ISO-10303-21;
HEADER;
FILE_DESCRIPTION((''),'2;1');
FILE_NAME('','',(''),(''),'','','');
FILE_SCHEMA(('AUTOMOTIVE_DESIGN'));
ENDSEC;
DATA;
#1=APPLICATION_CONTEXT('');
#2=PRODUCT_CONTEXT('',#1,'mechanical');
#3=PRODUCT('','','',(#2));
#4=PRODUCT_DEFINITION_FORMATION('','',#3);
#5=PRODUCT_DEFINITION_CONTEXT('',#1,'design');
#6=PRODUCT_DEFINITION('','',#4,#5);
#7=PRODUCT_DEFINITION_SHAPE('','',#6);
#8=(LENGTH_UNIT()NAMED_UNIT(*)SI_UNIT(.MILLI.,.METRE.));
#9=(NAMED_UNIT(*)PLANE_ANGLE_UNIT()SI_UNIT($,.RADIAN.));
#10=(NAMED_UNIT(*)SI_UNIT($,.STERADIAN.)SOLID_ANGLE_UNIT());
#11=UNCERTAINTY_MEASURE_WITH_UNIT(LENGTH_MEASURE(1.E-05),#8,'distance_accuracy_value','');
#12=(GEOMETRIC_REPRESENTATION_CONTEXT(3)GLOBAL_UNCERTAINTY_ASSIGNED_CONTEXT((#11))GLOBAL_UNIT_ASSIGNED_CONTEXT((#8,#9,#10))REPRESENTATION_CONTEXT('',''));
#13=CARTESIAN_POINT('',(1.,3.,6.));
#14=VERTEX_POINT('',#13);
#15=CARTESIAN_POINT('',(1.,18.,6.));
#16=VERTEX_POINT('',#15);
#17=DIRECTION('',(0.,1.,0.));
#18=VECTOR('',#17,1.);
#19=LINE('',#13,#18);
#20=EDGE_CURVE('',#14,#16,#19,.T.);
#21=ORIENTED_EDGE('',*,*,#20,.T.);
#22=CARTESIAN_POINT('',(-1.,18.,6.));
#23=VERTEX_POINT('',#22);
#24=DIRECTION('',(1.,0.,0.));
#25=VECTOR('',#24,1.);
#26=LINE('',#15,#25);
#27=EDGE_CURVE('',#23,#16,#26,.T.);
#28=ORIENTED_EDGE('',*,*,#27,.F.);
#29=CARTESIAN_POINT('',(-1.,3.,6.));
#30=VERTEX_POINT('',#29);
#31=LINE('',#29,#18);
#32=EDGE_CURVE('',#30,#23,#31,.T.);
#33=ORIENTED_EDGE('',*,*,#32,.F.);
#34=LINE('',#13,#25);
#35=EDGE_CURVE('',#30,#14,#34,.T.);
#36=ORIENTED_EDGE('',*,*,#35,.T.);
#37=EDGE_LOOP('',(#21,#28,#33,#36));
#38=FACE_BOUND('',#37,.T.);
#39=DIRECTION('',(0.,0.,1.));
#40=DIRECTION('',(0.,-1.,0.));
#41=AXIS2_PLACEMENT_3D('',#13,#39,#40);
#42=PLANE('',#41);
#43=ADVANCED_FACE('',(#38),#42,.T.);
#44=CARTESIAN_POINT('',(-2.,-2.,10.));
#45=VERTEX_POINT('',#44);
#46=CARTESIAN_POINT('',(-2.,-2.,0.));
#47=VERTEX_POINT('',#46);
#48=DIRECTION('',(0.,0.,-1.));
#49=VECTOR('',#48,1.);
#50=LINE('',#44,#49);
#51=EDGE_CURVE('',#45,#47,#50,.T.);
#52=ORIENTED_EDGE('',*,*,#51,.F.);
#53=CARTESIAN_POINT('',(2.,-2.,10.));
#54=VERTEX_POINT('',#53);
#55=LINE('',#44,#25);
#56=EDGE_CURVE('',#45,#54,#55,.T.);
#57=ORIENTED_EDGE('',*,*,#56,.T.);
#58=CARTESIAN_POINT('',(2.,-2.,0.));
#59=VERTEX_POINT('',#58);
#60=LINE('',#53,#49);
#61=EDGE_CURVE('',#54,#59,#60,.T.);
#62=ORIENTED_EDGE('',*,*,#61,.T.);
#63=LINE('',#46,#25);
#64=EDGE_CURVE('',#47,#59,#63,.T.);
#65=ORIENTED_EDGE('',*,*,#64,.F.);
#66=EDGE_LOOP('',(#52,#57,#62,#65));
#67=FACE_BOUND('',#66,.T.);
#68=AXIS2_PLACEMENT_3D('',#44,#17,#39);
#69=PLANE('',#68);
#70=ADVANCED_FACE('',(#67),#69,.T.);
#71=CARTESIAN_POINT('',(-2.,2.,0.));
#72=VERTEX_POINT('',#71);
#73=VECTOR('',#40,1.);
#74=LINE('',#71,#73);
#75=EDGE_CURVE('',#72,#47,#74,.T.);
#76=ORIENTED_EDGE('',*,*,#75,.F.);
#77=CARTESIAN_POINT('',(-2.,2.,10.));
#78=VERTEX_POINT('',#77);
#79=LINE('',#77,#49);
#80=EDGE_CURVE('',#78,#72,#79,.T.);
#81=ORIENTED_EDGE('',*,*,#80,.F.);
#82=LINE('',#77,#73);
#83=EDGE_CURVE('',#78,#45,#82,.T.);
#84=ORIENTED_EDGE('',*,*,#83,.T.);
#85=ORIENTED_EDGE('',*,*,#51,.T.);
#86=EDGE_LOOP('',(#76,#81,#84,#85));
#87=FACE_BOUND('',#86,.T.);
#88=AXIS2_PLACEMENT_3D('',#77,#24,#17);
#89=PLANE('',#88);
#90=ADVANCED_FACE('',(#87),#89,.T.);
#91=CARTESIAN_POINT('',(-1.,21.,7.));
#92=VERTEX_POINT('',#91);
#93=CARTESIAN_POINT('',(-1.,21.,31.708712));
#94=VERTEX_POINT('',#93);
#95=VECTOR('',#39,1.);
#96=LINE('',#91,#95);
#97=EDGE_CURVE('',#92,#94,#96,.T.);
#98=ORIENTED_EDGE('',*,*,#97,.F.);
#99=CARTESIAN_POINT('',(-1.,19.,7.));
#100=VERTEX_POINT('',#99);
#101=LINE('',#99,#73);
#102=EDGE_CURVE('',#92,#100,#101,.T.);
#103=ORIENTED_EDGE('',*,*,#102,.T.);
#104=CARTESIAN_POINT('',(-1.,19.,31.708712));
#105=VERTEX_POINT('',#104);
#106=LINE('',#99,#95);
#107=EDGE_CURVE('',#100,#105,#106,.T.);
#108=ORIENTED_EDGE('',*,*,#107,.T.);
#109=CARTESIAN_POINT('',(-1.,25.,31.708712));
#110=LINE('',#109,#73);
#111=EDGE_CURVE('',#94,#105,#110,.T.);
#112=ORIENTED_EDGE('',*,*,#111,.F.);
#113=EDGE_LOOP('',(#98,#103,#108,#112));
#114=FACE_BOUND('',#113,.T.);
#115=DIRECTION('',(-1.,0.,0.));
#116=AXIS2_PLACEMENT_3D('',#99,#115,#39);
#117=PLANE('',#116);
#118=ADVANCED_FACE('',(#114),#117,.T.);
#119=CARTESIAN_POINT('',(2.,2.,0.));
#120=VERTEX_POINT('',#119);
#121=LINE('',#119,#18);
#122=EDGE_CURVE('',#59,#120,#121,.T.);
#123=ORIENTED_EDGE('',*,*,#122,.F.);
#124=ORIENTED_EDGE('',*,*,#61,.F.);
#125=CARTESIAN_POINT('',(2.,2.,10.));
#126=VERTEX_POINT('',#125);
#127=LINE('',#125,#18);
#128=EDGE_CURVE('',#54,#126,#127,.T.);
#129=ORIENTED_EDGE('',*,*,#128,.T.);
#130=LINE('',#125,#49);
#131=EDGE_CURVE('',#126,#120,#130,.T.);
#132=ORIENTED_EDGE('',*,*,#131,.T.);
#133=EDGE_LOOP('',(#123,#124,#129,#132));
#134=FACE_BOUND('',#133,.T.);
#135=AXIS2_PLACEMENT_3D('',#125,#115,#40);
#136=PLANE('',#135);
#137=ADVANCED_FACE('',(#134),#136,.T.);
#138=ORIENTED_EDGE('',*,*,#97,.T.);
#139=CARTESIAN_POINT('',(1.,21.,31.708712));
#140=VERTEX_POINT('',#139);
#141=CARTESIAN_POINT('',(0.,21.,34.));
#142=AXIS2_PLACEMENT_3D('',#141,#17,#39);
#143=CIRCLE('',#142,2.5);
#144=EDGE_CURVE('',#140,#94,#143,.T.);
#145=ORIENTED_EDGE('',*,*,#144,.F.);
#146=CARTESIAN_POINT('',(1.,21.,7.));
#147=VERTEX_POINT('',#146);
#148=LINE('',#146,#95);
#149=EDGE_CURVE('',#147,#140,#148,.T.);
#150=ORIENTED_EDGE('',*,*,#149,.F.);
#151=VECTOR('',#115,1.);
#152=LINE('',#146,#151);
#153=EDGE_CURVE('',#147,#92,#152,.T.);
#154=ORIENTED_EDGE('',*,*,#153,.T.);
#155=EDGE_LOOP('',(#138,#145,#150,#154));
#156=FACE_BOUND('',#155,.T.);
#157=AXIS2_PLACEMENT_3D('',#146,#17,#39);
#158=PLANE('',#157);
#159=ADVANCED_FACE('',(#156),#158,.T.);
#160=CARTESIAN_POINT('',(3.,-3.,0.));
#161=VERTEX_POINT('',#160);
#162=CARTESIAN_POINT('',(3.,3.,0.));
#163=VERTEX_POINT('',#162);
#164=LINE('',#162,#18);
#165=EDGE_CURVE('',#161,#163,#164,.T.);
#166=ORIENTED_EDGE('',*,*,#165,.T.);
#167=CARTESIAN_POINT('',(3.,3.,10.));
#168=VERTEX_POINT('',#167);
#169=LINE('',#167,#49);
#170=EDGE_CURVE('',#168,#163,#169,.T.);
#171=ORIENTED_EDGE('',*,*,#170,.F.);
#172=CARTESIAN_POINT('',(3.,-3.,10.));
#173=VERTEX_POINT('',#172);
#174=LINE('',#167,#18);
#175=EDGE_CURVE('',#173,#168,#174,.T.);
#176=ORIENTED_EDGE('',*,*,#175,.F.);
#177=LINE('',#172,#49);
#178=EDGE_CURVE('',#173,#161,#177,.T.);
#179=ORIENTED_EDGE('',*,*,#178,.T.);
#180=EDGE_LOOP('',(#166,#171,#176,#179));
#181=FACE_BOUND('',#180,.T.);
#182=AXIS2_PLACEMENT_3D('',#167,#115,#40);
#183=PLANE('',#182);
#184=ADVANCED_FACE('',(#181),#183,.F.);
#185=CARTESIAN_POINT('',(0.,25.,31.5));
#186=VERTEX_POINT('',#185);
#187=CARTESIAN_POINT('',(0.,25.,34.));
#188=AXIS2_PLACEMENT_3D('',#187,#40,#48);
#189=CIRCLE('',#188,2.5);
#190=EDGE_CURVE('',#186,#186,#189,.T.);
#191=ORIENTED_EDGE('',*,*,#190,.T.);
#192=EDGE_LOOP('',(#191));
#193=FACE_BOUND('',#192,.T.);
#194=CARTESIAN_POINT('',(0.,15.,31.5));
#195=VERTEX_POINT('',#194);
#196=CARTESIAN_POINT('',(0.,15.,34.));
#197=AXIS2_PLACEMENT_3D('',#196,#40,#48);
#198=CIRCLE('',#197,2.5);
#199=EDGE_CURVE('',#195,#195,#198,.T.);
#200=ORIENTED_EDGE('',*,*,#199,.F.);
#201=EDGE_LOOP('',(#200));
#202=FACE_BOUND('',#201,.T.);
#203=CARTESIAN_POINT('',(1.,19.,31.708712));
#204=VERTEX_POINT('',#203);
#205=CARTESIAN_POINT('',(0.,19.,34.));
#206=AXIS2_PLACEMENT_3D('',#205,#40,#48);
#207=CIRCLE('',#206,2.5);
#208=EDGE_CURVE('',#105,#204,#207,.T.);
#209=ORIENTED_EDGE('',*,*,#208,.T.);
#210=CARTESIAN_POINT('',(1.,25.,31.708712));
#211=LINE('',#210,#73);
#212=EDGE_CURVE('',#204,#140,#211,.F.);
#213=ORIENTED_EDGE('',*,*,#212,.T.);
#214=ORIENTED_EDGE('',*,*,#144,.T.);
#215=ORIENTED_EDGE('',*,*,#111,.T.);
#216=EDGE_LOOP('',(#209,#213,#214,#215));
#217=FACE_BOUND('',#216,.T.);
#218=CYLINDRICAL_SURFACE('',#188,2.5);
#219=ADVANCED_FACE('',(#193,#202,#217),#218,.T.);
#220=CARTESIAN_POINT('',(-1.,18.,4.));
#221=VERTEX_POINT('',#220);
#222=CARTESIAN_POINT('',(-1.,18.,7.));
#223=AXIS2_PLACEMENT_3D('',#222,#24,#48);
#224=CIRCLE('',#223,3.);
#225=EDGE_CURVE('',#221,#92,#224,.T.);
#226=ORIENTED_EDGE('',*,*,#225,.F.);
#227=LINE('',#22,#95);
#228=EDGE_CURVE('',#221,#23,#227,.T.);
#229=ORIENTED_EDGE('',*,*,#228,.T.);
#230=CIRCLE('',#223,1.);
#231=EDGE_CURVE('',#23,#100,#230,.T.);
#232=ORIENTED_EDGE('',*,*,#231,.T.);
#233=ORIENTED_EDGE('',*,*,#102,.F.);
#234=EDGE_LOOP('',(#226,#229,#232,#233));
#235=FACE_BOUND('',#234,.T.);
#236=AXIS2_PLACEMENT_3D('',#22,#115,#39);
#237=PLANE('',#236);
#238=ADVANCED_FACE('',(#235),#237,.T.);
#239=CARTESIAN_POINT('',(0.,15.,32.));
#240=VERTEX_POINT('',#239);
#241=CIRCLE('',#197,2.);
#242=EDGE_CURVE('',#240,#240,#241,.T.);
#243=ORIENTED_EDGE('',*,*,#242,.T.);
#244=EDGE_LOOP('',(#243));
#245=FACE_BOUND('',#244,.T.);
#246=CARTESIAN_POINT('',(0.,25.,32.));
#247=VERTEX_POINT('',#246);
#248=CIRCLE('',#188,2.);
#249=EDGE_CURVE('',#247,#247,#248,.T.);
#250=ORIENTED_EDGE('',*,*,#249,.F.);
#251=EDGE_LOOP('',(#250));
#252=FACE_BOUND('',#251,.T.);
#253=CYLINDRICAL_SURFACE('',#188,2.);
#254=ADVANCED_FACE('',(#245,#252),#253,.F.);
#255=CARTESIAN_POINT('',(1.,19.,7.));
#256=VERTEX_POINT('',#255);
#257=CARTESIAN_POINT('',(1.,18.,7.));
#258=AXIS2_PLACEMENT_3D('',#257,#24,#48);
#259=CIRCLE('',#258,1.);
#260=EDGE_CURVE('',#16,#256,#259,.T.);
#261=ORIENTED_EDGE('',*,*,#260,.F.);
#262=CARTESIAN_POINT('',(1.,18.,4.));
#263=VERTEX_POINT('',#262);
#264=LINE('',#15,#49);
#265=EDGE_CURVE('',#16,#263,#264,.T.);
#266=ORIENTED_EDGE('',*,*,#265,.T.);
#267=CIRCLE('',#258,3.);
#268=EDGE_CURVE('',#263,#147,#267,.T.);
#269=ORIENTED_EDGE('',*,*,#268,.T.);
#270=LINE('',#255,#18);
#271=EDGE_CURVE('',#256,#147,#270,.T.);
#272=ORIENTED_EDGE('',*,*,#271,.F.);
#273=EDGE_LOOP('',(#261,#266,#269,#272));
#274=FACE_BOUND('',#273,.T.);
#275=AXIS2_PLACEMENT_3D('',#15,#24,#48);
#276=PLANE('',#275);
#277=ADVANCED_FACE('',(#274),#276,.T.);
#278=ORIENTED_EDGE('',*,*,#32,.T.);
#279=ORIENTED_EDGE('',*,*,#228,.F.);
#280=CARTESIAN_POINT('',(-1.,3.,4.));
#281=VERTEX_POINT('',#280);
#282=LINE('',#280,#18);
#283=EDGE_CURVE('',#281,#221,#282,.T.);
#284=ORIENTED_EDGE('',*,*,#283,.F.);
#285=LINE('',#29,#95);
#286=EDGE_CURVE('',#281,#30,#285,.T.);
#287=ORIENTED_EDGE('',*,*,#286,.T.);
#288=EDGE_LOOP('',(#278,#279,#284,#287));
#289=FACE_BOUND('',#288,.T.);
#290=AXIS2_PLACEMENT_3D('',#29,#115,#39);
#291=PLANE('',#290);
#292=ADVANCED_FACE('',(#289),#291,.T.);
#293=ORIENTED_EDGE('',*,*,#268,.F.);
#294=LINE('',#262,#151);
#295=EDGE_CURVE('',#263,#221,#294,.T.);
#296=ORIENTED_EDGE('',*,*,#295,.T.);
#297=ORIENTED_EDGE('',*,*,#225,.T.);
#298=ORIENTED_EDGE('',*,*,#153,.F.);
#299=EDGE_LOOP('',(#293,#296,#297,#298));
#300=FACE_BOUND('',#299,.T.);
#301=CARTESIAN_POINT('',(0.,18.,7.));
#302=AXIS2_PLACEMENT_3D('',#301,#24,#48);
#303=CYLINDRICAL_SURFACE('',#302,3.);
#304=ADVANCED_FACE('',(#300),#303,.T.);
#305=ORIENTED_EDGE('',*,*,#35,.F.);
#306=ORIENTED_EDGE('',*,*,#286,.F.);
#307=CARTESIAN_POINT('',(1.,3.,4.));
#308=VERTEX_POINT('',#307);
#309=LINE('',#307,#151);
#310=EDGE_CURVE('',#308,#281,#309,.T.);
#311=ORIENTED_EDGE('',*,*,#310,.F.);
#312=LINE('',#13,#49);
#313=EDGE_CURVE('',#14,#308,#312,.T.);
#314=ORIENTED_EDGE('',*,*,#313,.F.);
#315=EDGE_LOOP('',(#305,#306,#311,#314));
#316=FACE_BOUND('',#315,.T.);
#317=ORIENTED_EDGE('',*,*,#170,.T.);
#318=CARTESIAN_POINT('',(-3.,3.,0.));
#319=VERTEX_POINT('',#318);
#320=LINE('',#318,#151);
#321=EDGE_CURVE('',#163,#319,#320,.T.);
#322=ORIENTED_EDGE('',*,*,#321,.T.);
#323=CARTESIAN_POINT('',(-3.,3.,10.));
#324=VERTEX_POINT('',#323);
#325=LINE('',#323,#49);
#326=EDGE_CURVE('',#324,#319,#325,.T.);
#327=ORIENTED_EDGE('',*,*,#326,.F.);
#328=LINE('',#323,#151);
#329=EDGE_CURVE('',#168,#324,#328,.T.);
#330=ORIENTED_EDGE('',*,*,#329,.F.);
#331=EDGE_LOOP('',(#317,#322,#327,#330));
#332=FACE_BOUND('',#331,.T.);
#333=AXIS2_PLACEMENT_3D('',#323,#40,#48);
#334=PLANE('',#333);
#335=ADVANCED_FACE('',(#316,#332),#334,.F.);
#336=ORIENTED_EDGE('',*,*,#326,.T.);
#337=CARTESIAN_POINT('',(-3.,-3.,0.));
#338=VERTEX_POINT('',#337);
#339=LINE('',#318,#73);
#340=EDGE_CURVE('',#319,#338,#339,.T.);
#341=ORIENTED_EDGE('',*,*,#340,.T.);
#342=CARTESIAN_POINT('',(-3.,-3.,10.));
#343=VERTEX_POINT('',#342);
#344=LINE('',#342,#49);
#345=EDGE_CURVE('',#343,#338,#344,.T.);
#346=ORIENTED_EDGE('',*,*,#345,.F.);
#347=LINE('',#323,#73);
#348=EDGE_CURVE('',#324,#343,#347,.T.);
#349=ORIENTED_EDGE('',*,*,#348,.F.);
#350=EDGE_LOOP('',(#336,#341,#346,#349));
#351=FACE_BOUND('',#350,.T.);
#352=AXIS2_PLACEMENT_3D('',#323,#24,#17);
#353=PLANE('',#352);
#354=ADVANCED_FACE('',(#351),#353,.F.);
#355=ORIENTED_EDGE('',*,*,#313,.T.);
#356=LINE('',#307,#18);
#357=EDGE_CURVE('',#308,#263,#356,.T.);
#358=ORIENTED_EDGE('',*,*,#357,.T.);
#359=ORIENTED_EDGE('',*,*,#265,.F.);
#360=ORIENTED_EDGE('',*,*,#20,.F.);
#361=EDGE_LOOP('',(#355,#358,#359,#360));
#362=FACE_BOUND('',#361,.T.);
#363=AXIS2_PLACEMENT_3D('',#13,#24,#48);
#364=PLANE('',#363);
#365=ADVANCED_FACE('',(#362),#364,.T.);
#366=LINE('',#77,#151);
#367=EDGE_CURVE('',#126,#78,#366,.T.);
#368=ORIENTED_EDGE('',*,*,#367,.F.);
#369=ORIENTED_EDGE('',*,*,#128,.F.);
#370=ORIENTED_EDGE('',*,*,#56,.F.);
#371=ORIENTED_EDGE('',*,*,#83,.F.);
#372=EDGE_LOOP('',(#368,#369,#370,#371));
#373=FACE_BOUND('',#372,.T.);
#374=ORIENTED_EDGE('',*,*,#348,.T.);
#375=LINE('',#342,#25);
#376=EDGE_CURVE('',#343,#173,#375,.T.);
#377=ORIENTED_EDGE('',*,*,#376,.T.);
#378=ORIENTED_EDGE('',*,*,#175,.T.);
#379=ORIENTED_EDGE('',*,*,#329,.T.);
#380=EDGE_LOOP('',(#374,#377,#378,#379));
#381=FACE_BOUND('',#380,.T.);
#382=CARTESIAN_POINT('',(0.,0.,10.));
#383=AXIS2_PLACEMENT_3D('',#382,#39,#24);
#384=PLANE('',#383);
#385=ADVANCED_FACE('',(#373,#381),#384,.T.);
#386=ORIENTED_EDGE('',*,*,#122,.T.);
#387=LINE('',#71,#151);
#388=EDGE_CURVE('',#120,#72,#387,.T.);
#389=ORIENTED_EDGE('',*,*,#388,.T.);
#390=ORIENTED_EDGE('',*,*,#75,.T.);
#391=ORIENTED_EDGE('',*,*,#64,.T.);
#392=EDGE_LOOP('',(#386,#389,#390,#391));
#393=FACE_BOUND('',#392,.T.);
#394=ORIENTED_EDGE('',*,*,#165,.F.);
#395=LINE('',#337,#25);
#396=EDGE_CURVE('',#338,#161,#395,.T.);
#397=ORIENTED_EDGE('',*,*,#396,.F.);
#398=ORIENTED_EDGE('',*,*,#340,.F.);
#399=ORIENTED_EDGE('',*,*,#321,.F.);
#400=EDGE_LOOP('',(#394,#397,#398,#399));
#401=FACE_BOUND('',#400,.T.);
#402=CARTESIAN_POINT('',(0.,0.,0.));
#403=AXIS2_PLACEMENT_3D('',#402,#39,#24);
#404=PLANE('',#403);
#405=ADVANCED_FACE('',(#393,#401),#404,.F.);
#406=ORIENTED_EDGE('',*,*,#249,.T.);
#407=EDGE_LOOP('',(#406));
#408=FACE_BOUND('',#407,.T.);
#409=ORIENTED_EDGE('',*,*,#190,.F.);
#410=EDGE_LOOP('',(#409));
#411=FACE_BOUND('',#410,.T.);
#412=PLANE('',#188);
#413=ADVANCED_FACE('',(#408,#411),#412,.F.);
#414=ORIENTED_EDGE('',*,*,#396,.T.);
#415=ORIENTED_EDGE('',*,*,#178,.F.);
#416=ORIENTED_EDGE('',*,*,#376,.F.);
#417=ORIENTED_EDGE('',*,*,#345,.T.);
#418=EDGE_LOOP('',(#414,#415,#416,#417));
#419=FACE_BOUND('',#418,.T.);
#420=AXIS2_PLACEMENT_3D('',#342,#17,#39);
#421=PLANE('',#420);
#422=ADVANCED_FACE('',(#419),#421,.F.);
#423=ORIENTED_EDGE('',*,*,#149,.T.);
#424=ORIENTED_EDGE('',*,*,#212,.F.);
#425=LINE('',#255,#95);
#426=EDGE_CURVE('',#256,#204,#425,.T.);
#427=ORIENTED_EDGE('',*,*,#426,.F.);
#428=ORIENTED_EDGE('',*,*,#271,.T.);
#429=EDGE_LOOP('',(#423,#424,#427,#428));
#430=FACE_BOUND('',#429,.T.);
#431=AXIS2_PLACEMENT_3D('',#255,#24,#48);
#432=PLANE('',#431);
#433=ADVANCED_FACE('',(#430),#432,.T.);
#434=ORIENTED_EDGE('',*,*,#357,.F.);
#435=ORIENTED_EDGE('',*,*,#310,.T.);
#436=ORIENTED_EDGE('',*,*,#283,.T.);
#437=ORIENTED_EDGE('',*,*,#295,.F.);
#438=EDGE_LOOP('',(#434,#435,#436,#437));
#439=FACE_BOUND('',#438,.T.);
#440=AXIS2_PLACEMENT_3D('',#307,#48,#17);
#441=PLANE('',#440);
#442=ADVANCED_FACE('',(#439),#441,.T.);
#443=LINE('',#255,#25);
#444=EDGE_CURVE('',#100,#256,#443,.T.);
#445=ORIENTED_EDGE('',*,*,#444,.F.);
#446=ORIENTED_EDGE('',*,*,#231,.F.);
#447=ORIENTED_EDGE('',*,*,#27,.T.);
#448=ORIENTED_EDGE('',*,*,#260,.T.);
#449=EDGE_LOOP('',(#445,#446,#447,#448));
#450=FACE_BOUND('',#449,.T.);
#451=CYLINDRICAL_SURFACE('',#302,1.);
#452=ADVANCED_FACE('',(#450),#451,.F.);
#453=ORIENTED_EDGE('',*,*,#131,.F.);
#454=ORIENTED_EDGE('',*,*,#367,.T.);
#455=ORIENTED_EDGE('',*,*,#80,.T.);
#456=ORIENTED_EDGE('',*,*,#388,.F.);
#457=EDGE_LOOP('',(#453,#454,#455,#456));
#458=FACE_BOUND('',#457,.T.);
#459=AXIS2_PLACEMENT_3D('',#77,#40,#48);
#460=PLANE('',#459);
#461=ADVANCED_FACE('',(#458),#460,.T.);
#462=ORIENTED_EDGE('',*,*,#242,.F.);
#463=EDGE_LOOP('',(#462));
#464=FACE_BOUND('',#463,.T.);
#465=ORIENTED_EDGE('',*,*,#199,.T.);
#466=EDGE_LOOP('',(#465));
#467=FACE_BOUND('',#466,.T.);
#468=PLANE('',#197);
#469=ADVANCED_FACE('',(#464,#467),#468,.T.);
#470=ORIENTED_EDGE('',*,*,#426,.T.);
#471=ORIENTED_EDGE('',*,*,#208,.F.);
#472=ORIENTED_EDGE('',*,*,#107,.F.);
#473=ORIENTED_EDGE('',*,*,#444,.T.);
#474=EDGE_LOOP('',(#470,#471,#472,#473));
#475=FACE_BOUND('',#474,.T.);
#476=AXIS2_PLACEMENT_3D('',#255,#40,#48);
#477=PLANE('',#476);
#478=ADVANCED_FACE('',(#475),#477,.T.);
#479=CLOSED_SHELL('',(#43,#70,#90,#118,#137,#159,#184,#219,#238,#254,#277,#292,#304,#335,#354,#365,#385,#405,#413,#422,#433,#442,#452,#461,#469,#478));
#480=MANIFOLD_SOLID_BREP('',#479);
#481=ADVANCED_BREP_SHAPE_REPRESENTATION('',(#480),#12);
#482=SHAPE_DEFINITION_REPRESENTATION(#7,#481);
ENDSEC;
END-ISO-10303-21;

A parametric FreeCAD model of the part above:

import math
import FreeCAD as App
import Part
import Sketcher

doc = App.newDocument("Part")
body = doc.addObject("PartDesign::Body", "Body")

# Sketch on XY plane
sketch1 = body.newObject("Sketcher::SketchObject", "Sketch")
sketch1.AttachmentSupport = (doc.getObject("XY_Plane"), [""])
sketch1.MapMode = "FlatFace"
sketch1.addGeometry([
    Part.LineSegment(App.Vector(-3, 3, 0), App.Vector(-3, -3, 0)),  # 0
    Part.LineSegment(App.Vector(-3, -3, 0), App.Vector(3, -3, 0)),  # 1
    Part.LineSegment(App.Vector(3, -3, 0), App.Vector(3, 3, 0)),  # 2
    Part.LineSegment(App.Vector(3, 3, 0), App.Vector(-3, 3, 0)),  # 3
    Part.LineSegment(App.Vector(2, -2, 0), App.Vector(-2, -2, 0)),  # 4
    Part.LineSegment(App.Vector(-2, -2, 0), App.Vector(-2, 2, 0)),  # 5
    Part.LineSegment(App.Vector(-2, 2, 0), App.Vector(2, 2, 0)),  # 6
    Part.LineSegment(App.Vector(2, 2, 0), App.Vector(2, -2, 0)),  # 7
], False)
sketch1.addConstraint([
    Sketcher.Constraint("Coincident", 0, 2, 1, 1),
    Sketcher.Constraint("Coincident", 1, 2, 2, 1),
    Sketcher.Constraint("Coincident", 2, 2, 3, 1),
    Sketcher.Constraint("Coincident", 3, 2, 0, 1),
    Sketcher.Constraint("Coincident", 4, 2, 5, 1),
    Sketcher.Constraint("Coincident", 5, 2, 6, 1),
    Sketcher.Constraint("Coincident", 6, 2, 7, 1),
    Sketcher.Constraint("Coincident", 7, 2, 4, 1),
    Sketcher.Constraint("Vertical", 0),
    Sketcher.Constraint("Horizontal", 1),
    Sketcher.Constraint("Vertical", 2),
    Sketcher.Constraint("Horizontal", 3),
    Sketcher.Constraint("Horizontal", 4),
    Sketcher.Constraint("Vertical", 5),
    Sketcher.Constraint("Horizontal", 6),
    Sketcher.Constraint("Vertical", 7),
    Sketcher.Constraint("Symmetric", 0, 2, 2, 2, -1, 1),
    Sketcher.Constraint("Symmetric", 4, 2, 6, 2, -1, 1),
    Sketcher.Constraint("Equal", 3, 0),
    Sketcher.Constraint("Equal", 6, 5),
    Sketcher.Constraint("DistanceX", 1, 1, 1, 2, 6.0),
    Sketcher.Constraint("DistanceX", 4, 2, 4, 1, 4.0),
])
pad1 = body.newObject("PartDesign::Pad", "Pad")
pad1.Profile = sketch1
pad1.Length = 10

# Sketch on XZ plane
sketch2 = body.newObject("Sketcher::SketchObject", "Sketch001")
sketch2.AttachmentSupport = (doc.getObject("XZ_Plane"), [""])
sketch2.MapMode = "FlatFace"
sketch2.AttachmentOffset = App.Placement(App.Vector(0, 0, -3), App.Rotation())
sketch2.addGeometry([
    Part.LineSegment(App.Vector(-1, 4, 0), App.Vector(-1, 6, 0)),
    Part.LineSegment(App.Vector(-1, 6, 0), App.Vector(1, 6, 0)),
    Part.LineSegment(App.Vector(1, 6, 0), App.Vector(1, 4, 0)),
    Part.LineSegment(App.Vector(1, 4, 0), App.Vector(-1, 4, 0)),
], False)
sketch2.addConstraint([
    Sketcher.Constraint("Coincident", 0, 2, 1, 1),
    Sketcher.Constraint("Coincident", 1, 2, 2, 1),
    Sketcher.Constraint("Coincident", 2, 2, 3, 1),
    Sketcher.Constraint("Coincident", 3, 2, 0, 1),
    Sketcher.Constraint("Vertical", 0),
    Sketcher.Constraint("Horizontal", 1),
    Sketcher.Constraint("Vertical", 2),
    Sketcher.Constraint("Horizontal", 3),
    Sketcher.Constraint("Equal", 3, 0),
    Sketcher.Constraint("DistanceX", 1, 1, 1, 2, 2.0),
    Sketcher.Constraint("DistanceX", 0, 2, -1, 1, 1.0),
    Sketcher.Constraint("DistanceY", -1, 1, 0, 2, 6.0),
])

# Sketch on YZ plane
sketch3 = body.newObject("Sketcher::SketchObject", "Sketch002")
sketch3.AttachmentSupport = (doc.getObject("YZ_Plane"), [""])
sketch3.MapMode = "FlatFace"
sketch3.addGeometry([
    Part.LineSegment(App.Vector(3, 5, 0), App.Vector(18, 5, 0)),
    Part.ArcOfCircle(Part.Circle(App.Vector(18, 7, 0), App.Vector(0, 0, 1), 2), math.radians(-90), math.radians(0)),
    Part.LineSegment(App.Vector(20, 7, 0), App.Vector(20, 32, 0)),
], False)
sketch3.addConstraint([
    Sketcher.Constraint("Tangent", 0, 2, 1, 1),
    Sketcher.Constraint("Tangent", 1, 2, 2, 1),
    Sketcher.Constraint("Horizontal", 0),
    Sketcher.Constraint("Vertical", 2),
    Sketcher.Constraint("Radius", 1, 2.0),
    Sketcher.Constraint("DistanceX", 0, 1, 0, 2, 15.0),
    Sketcher.Constraint("DistanceY", 2, 1, 2, 2, 25.0),
    Sketcher.Constraint("DistanceX", -1, 1, 1, 3, 18.0),
    Sketcher.Constraint("DistanceY", -1, 1, 1, 3, 7.0),
])
doc.recompute()

additivepipe = body.newObject("PartDesign::AdditivePipe", "AdditivePipe")
additivepipe.Profile = sketch2
additivepipe.Spine = (sketch3, ["Edge1", "Edge2", "Edge3"])

# Sketch on XZ plane
sketch4 = body.newObject("Sketcher::SketchObject", "Sketch003")
sketch4.AttachmentSupport = (doc.getObject("XZ_Plane"), [""])
sketch4.MapMode = "FlatFace"
sketch4.AttachmentOffset = App.Placement(App.Vector(0, 0, -19), App.Rotation())
sketch4.addGeometry([
    Part.Circle(App.Vector(0, 34, 0), App.Vector(0, 0, 1), 2.5),
    Part.Circle(App.Vector(0, 34, 0), App.Vector(0, 0, 1), 2),
], False)
sketch4.addConstraint([
    Sketcher.Constraint("Coincident", 1, 3, 0, 3),
    Sketcher.Constraint("PointOnObject", 0, 3, -2),
    Sketcher.Constraint("Diameter", 0, 5.0),
    Sketcher.Constraint("Diameter", 1, 4.0),
    Sketcher.Constraint("DistanceY", -1, 1, 0, 3, 34.0),
])
pad2 = body.newObject("PartDesign::Pad", "Pad001")
pad2.Profile = sketch4
pad2.Type = "TwoLengths"
pad2.Length = 4
pad2.Length2 = 6

doc.recompute()
